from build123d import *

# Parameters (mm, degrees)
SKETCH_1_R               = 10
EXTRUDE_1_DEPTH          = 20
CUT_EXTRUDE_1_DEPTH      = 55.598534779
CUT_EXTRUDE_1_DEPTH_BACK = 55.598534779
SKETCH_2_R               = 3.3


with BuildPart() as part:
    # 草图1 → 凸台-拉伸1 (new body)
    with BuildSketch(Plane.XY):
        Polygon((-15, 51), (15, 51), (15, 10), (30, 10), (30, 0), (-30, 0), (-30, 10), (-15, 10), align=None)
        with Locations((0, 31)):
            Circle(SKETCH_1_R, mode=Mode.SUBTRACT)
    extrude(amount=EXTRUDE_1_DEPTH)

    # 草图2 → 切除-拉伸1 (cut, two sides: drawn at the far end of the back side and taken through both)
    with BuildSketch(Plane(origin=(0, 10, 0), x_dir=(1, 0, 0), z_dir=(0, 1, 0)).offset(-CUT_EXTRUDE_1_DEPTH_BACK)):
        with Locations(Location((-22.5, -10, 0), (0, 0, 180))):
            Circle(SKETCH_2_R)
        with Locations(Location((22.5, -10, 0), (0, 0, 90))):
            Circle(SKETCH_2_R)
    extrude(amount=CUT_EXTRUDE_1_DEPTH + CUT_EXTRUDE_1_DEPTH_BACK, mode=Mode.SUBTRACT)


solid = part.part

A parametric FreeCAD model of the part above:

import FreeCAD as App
import Part
import Sketcher
from FreeCAD import Vector
Q = App.Units.Quantity


def add_polygon(sketch, points):
    """Adds a closed chain of lines whose ends are joined by coincident constraints."""
    first, n = sketch.GeometryCount, len(points)
    for a, b in zip(points, points[1:] + points[:1]):
        sketch.addGeometry(Part.LineSegment(App.Vector(*a, 0), App.Vector(*b, 0)), False)
    for i in range(n):
        sketch.addConstraint(Sketcher.Constraint("Coincident", first + i, 2, first + (i + 1) % n, 1))

doc = App.newDocument("Part")
body = doc.addObject("PartDesign::Body", "Body")

# Sketch on XY plane
sketch1 = doc.addObject("Sketcher::SketchObject", "Sketch")
body.addObject(sketch1)
sketch1.AttachmentSupport = (doc.XY_Plane, [""])
sketch1.MapMode = "FlatFace"
add_polygon(sketch1, [(15, 51), (-15, 51), (-15, 10), (-30, 10), (-30, 0), (30, 0), (30, 10), (15, 10)])  # lines 0-7
sketch1.addGeometry(Part.Circle(Vector(0, 31, 0), Vector(0, 0, 1), 10), False)  # 8
sketch1.addConstraint([
    Sketcher.Constraint("Horizontal", 0),
    Sketcher.Constraint("Vertical", 1),
    Sketcher.Constraint("Horizontal", 2),
    Sketcher.Constraint("Vertical", 3),
    Sketcher.Constraint("Horizontal", 4),
    Sketcher.Constraint("Vertical", 5),
    Sketcher.Constraint("Horizontal", 6),
    Sketcher.Constraint("Vertical", 7),
    Sketcher.Constraint("Symmetric", 3, 2, 4, 2, -1, 1),
    Sketcher.Constraint("Symmetric", 1, 2, 6, 2, -2),
    Sketcher.Constraint("PointOnObject", 8, 3, -2),
    Sketcher.Constraint("Diameter", 8, Q("20 mm")),
    Sketcher.Constraint("DistanceX", 0, 2, 0, 1, Q("30 mm")),
    Sketcher.Constraint("DistanceX", 2, 2, 2, 1, Q("15 mm")),
    Sketcher.Constraint("DistanceY", 1, 2, 1, 1, Q("41 mm")),
    Sketcher.Constraint("DistanceY", 3, 2, 3, 1, Q("10 mm")),
    Sketcher.Constraint("DistanceY", -1, 1, 8, 3, Q("31 mm")),
])
pad1 = doc.addObject("PartDesign::Pad", "Pad")
body.addObject(pad1)
pad1.Profile = sketch1
pad1.Length = 20

# Sketch on XZ plane
sketch2 = doc.addObject("Sketcher::SketchObject", "Sketch001")
body.addObject(sketch2)
sketch2.AttachmentSupport = (doc.XZ_Plane, [""])
sketch2.MapMode = "FlatFace"
sketch2.AttachmentOffset = App.Placement(Vector(0, 0, -10), App.Rotation())
sketch2.addGeometry([
    Part.Circle(Vector(-22.5, 10, 0), Vector(0, 0, 1), 3.3),
    Part.Circle(Vector(22.5, 10, 0), Vector(0, 0, 1), 3.3),
], False)
sketch2.addConstraint([
    Sketcher.Constraint("Equal", 0, 1),
    Sketcher.Constraint("Symmetric", 0, 3, 1, 3, -2),
    Sketcher.Constraint("Diameter", 0, Q("6.6 mm")),
    Sketcher.Constraint("DistanceY", -1, 1, 0, 3, Q("10 mm")),
    Sketcher.Constraint("DistanceX", 0, 3, 1, 3, Q("45 mm")),
])
pocket1 = doc.addObject("PartDesign::Pocket", "Pocket")
body.addObject(pocket1)
pocket1.Profile = sketch2
pocket1.Type = "ThroughAll"
pocket1.Midplane = True

doc.recompute()
